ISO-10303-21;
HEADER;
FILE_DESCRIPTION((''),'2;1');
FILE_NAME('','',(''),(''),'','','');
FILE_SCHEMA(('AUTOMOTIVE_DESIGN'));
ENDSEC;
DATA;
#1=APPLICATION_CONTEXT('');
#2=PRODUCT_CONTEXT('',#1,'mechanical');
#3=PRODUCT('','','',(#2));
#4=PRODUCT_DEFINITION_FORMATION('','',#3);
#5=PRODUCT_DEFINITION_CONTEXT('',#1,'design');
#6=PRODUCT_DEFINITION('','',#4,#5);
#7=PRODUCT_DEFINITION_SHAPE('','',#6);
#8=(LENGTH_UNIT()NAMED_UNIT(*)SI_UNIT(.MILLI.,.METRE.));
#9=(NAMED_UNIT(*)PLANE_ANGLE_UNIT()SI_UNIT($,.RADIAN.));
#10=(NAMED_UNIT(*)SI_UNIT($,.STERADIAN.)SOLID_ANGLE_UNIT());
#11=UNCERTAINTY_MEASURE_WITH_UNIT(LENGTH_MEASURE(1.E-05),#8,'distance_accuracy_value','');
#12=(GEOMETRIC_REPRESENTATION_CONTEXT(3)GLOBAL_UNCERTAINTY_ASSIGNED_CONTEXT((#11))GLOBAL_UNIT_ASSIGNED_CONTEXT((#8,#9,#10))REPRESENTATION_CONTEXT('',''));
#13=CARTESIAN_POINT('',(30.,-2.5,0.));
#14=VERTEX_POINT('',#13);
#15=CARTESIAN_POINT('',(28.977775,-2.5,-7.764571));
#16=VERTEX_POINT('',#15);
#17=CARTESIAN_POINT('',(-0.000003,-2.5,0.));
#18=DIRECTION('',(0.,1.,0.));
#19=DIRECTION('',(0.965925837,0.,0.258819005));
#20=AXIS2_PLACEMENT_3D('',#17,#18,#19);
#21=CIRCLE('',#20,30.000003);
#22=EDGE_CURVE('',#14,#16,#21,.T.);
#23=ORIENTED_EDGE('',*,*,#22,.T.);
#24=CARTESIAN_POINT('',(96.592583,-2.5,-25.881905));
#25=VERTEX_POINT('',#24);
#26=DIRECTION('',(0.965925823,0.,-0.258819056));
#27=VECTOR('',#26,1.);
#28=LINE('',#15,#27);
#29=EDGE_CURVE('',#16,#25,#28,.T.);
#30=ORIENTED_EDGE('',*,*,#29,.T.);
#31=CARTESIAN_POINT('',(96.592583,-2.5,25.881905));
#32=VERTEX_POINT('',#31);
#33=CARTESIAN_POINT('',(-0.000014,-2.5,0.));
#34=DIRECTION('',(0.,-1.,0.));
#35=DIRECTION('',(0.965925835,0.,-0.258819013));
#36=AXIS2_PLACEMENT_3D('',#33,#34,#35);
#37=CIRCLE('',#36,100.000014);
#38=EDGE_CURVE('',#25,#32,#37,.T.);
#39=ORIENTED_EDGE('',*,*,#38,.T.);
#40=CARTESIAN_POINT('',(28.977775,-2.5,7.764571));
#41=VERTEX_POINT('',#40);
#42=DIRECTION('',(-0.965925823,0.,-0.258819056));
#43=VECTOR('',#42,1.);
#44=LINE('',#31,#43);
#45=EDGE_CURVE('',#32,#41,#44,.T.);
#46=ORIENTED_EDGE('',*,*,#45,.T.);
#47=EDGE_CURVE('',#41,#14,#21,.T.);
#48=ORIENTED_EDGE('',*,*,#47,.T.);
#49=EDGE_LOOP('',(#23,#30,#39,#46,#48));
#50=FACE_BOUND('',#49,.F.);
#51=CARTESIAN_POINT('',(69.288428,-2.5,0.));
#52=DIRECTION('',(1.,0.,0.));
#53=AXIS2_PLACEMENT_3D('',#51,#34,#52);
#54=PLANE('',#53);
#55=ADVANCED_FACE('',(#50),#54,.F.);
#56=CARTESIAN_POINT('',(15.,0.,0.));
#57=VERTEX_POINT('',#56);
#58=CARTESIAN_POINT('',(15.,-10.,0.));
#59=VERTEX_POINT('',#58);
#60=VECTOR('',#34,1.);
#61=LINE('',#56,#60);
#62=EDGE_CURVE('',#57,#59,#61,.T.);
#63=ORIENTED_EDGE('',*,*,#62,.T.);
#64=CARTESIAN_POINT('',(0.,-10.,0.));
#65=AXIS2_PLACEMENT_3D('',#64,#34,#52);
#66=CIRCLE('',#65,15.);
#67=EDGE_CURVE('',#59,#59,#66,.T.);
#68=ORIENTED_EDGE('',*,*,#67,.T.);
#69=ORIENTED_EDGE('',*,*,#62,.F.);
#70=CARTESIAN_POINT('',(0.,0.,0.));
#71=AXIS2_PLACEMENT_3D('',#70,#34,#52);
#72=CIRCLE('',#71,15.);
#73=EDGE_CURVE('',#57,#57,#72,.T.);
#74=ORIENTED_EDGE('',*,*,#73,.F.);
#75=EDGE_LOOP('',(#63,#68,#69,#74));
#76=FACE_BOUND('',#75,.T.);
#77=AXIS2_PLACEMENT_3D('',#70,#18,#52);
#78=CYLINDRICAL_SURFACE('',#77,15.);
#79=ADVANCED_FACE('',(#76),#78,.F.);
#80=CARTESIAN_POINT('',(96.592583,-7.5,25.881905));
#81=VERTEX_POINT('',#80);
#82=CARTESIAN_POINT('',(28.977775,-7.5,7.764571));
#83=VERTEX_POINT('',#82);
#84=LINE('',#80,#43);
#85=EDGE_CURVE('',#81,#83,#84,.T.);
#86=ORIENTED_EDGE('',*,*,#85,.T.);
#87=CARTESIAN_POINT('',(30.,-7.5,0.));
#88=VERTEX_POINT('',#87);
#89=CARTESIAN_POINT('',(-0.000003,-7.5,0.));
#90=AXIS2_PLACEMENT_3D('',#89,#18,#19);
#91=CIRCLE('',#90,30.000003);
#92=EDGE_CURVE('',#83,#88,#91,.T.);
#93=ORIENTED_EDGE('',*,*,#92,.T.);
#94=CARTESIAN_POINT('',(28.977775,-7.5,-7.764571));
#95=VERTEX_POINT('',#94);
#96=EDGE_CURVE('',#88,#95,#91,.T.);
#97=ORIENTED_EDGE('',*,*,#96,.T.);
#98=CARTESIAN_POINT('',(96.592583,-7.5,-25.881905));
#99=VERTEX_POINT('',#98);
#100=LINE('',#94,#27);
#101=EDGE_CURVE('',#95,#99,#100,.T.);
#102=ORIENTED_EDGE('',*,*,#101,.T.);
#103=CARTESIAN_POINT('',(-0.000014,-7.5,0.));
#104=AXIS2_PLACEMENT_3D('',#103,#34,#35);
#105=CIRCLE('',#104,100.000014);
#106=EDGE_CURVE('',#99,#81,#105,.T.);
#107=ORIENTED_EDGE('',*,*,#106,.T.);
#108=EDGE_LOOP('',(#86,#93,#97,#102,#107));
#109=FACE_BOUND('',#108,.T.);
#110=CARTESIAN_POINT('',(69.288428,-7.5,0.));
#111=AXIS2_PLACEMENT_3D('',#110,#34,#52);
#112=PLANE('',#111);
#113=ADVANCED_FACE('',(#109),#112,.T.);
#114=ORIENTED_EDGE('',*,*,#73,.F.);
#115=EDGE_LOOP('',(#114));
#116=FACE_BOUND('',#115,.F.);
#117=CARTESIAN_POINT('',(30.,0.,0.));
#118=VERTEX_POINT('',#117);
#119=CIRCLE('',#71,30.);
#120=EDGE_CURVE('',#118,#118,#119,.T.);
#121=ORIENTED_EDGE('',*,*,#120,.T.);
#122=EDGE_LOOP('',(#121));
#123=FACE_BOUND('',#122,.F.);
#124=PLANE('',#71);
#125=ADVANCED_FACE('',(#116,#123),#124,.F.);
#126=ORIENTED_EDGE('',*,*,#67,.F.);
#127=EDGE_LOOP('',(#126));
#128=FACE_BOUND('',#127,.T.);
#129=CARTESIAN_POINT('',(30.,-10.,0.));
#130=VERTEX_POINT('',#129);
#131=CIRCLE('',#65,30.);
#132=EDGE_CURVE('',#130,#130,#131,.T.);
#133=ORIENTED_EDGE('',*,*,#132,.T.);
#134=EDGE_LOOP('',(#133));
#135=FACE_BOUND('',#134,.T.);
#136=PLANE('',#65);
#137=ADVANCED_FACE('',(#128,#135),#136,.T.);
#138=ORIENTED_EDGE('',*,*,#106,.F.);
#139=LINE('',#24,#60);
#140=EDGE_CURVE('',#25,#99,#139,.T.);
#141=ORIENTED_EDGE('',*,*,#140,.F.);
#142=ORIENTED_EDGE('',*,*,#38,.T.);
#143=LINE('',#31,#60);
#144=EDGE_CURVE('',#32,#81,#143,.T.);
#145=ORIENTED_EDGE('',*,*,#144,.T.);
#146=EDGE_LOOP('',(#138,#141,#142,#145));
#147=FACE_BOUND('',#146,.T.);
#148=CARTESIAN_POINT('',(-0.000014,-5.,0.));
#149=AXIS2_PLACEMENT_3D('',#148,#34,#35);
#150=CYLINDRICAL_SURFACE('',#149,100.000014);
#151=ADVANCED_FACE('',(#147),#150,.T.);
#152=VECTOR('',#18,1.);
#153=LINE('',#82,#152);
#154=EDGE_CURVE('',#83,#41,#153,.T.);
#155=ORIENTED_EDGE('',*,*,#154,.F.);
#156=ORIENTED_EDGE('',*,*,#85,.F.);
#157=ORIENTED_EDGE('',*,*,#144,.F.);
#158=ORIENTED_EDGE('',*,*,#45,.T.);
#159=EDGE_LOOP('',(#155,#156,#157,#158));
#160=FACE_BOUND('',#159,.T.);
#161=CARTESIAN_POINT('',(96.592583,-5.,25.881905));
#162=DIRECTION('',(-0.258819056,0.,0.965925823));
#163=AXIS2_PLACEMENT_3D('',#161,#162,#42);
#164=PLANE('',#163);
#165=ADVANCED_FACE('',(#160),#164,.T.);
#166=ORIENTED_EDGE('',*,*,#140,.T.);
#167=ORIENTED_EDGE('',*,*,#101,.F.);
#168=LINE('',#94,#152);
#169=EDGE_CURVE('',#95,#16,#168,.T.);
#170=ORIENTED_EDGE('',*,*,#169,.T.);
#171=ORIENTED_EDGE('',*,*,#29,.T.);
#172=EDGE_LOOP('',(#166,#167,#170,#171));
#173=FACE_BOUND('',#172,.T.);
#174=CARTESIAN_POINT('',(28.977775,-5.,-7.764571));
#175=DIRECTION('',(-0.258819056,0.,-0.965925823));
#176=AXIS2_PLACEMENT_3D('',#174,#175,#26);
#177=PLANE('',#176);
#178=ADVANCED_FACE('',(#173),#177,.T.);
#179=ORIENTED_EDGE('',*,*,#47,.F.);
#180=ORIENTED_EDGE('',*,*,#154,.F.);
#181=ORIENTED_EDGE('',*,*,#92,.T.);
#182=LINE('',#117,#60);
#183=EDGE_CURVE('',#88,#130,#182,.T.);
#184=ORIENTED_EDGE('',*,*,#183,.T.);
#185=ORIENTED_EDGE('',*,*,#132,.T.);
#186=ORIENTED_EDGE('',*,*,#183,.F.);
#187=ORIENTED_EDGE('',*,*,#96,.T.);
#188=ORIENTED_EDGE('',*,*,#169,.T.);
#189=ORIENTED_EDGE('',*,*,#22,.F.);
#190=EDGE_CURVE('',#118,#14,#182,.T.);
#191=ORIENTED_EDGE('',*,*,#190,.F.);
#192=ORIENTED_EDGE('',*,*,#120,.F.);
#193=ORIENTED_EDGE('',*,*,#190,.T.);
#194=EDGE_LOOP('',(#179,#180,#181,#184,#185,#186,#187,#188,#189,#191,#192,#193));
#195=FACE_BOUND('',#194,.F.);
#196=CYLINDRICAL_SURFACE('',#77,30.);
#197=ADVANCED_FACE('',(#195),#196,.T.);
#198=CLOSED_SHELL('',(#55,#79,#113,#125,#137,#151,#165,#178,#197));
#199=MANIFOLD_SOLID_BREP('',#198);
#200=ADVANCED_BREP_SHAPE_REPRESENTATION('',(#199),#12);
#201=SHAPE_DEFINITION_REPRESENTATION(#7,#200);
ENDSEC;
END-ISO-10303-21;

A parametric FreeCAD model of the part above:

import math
import FreeCAD as App
import Part
import Sketcher
from FreeCAD import Vector
Q = App.Units.Quantity

doc = App.newDocument("Part")
body = doc.addObject("PartDesign::Body", "Body")

# Sketch on XZ plane
sketch1 = doc.addObject("Sketcher::SketchObject", "Sketch")
body.addObject(sketch1)
sketch1.AttachmentSupport = (doc.XZ_Plane, [""])
sketch1.MapMode = "FlatFace"
sketch1.addGeometry(Part.Circle(Vector(0, 0, 0), Vector(0, 0, 1), 30), False)
sketch1.addGeometry(Part.Circle(Vector(0, 0, 0), Vector(0, 0, 1), 15), False)
sketch1.addConstraint(Sketcher.Constraint("Coincident", 0, 3, -1, 1))
sketch1.addConstraint(Sketcher.Constraint("Coincident", 1, 3, -1, 1))
sketch1.addConstraint(Sketcher.Constraint("Diameter", 0, Q("60 mm")))
sketch1.addConstraint(Sketcher.Constraint("Diameter", 1, Q("30 mm")))
pad1 = doc.addObject("PartDesign::Pad", "Pad")
body.addObject(pad1)
pad1.Profile = sketch1
pad1.Length = 10

# Sketch on XZ plane
sketch2 = doc.addObject("Sketcher::SketchObject", "Sketch001")
body.addObject(sketch2)
sketch2.AttachmentSupport = (doc.XZ_Plane, [""])
sketch2.MapMode = "FlatFace"
sketch2.AttachmentOffset = App.Placement(Vector(0, 0, 5), App.Rotation())
sketch2.addGeometry(Part.LineSegment(Vector(29, -8, 0), Vector(97, -26, 0)), False)
sketch2.addGeometry(Part.ArcOfCircle(Part.Circle(Vector(0, 0, 0), Vector(0, 0, 1), 100), math.radians(-15), math.radians(15)), False)
sketch2.addGeometry(Part.LineSegment(Vector(97, 26, 0), Vector(29, 8, 0)), False)
sketch2.addGeometry(Part.ArcOfCircle(Part.Circle(Vector(0, 0, 0), Vector(0, 0, 1), 30), math.radians(-15), math.radians(15)), False)
sketch2.addConstraint(Sketcher.Constraint("Coincident", 0, 2, 1, 1))
sketch2.addConstraint(Sketcher.Constraint("Coincident", 1, 2, 2, 1))
sketch2.addConstraint(Sketcher.Constraint("Coincident", 2, 2, 3, 2))
sketch2.addConstraint(Sketcher.Constraint("Coincident", 3, 1, 0, 1))
sketch2.addConstraint(Sketcher.Constraint("Coincident", 3, 3, -1, 1))
sketch2.addConstraint(Sketcher.Constraint("Symmetric", 0, 2, 1, 2, -1))
sketch2.addConstraint(Sketcher.Constraint("Vertical", 2, 2, 3, 1))
sketch2.addConstraint(Sketcher.Constraint("Angle", 0, Q("-15.000001 deg")))
sketch2.addConstraint(Sketcher.Constraint("Distance", 0, Q("70 mm")))
sketch2.addConstraint(Sketcher.Constraint("Radius", 1, Q("100.000014 mm")))
sketch2.addConstraint(Sketcher.Constraint("Radius", 3, Q("30.000003 mm")))
sketch2.addConstraint(Sketcher.Constraint("DistanceY", -1, 1, 2, 2, Q("7.764571 mm")))
pad2 = doc.addObject("PartDesign::Pad", "Pad001")
body.addObject(pad2)
pad2.Profile = sketch2
pad2.Length = 5
pad2.Midplane = True

doc.recompute()
